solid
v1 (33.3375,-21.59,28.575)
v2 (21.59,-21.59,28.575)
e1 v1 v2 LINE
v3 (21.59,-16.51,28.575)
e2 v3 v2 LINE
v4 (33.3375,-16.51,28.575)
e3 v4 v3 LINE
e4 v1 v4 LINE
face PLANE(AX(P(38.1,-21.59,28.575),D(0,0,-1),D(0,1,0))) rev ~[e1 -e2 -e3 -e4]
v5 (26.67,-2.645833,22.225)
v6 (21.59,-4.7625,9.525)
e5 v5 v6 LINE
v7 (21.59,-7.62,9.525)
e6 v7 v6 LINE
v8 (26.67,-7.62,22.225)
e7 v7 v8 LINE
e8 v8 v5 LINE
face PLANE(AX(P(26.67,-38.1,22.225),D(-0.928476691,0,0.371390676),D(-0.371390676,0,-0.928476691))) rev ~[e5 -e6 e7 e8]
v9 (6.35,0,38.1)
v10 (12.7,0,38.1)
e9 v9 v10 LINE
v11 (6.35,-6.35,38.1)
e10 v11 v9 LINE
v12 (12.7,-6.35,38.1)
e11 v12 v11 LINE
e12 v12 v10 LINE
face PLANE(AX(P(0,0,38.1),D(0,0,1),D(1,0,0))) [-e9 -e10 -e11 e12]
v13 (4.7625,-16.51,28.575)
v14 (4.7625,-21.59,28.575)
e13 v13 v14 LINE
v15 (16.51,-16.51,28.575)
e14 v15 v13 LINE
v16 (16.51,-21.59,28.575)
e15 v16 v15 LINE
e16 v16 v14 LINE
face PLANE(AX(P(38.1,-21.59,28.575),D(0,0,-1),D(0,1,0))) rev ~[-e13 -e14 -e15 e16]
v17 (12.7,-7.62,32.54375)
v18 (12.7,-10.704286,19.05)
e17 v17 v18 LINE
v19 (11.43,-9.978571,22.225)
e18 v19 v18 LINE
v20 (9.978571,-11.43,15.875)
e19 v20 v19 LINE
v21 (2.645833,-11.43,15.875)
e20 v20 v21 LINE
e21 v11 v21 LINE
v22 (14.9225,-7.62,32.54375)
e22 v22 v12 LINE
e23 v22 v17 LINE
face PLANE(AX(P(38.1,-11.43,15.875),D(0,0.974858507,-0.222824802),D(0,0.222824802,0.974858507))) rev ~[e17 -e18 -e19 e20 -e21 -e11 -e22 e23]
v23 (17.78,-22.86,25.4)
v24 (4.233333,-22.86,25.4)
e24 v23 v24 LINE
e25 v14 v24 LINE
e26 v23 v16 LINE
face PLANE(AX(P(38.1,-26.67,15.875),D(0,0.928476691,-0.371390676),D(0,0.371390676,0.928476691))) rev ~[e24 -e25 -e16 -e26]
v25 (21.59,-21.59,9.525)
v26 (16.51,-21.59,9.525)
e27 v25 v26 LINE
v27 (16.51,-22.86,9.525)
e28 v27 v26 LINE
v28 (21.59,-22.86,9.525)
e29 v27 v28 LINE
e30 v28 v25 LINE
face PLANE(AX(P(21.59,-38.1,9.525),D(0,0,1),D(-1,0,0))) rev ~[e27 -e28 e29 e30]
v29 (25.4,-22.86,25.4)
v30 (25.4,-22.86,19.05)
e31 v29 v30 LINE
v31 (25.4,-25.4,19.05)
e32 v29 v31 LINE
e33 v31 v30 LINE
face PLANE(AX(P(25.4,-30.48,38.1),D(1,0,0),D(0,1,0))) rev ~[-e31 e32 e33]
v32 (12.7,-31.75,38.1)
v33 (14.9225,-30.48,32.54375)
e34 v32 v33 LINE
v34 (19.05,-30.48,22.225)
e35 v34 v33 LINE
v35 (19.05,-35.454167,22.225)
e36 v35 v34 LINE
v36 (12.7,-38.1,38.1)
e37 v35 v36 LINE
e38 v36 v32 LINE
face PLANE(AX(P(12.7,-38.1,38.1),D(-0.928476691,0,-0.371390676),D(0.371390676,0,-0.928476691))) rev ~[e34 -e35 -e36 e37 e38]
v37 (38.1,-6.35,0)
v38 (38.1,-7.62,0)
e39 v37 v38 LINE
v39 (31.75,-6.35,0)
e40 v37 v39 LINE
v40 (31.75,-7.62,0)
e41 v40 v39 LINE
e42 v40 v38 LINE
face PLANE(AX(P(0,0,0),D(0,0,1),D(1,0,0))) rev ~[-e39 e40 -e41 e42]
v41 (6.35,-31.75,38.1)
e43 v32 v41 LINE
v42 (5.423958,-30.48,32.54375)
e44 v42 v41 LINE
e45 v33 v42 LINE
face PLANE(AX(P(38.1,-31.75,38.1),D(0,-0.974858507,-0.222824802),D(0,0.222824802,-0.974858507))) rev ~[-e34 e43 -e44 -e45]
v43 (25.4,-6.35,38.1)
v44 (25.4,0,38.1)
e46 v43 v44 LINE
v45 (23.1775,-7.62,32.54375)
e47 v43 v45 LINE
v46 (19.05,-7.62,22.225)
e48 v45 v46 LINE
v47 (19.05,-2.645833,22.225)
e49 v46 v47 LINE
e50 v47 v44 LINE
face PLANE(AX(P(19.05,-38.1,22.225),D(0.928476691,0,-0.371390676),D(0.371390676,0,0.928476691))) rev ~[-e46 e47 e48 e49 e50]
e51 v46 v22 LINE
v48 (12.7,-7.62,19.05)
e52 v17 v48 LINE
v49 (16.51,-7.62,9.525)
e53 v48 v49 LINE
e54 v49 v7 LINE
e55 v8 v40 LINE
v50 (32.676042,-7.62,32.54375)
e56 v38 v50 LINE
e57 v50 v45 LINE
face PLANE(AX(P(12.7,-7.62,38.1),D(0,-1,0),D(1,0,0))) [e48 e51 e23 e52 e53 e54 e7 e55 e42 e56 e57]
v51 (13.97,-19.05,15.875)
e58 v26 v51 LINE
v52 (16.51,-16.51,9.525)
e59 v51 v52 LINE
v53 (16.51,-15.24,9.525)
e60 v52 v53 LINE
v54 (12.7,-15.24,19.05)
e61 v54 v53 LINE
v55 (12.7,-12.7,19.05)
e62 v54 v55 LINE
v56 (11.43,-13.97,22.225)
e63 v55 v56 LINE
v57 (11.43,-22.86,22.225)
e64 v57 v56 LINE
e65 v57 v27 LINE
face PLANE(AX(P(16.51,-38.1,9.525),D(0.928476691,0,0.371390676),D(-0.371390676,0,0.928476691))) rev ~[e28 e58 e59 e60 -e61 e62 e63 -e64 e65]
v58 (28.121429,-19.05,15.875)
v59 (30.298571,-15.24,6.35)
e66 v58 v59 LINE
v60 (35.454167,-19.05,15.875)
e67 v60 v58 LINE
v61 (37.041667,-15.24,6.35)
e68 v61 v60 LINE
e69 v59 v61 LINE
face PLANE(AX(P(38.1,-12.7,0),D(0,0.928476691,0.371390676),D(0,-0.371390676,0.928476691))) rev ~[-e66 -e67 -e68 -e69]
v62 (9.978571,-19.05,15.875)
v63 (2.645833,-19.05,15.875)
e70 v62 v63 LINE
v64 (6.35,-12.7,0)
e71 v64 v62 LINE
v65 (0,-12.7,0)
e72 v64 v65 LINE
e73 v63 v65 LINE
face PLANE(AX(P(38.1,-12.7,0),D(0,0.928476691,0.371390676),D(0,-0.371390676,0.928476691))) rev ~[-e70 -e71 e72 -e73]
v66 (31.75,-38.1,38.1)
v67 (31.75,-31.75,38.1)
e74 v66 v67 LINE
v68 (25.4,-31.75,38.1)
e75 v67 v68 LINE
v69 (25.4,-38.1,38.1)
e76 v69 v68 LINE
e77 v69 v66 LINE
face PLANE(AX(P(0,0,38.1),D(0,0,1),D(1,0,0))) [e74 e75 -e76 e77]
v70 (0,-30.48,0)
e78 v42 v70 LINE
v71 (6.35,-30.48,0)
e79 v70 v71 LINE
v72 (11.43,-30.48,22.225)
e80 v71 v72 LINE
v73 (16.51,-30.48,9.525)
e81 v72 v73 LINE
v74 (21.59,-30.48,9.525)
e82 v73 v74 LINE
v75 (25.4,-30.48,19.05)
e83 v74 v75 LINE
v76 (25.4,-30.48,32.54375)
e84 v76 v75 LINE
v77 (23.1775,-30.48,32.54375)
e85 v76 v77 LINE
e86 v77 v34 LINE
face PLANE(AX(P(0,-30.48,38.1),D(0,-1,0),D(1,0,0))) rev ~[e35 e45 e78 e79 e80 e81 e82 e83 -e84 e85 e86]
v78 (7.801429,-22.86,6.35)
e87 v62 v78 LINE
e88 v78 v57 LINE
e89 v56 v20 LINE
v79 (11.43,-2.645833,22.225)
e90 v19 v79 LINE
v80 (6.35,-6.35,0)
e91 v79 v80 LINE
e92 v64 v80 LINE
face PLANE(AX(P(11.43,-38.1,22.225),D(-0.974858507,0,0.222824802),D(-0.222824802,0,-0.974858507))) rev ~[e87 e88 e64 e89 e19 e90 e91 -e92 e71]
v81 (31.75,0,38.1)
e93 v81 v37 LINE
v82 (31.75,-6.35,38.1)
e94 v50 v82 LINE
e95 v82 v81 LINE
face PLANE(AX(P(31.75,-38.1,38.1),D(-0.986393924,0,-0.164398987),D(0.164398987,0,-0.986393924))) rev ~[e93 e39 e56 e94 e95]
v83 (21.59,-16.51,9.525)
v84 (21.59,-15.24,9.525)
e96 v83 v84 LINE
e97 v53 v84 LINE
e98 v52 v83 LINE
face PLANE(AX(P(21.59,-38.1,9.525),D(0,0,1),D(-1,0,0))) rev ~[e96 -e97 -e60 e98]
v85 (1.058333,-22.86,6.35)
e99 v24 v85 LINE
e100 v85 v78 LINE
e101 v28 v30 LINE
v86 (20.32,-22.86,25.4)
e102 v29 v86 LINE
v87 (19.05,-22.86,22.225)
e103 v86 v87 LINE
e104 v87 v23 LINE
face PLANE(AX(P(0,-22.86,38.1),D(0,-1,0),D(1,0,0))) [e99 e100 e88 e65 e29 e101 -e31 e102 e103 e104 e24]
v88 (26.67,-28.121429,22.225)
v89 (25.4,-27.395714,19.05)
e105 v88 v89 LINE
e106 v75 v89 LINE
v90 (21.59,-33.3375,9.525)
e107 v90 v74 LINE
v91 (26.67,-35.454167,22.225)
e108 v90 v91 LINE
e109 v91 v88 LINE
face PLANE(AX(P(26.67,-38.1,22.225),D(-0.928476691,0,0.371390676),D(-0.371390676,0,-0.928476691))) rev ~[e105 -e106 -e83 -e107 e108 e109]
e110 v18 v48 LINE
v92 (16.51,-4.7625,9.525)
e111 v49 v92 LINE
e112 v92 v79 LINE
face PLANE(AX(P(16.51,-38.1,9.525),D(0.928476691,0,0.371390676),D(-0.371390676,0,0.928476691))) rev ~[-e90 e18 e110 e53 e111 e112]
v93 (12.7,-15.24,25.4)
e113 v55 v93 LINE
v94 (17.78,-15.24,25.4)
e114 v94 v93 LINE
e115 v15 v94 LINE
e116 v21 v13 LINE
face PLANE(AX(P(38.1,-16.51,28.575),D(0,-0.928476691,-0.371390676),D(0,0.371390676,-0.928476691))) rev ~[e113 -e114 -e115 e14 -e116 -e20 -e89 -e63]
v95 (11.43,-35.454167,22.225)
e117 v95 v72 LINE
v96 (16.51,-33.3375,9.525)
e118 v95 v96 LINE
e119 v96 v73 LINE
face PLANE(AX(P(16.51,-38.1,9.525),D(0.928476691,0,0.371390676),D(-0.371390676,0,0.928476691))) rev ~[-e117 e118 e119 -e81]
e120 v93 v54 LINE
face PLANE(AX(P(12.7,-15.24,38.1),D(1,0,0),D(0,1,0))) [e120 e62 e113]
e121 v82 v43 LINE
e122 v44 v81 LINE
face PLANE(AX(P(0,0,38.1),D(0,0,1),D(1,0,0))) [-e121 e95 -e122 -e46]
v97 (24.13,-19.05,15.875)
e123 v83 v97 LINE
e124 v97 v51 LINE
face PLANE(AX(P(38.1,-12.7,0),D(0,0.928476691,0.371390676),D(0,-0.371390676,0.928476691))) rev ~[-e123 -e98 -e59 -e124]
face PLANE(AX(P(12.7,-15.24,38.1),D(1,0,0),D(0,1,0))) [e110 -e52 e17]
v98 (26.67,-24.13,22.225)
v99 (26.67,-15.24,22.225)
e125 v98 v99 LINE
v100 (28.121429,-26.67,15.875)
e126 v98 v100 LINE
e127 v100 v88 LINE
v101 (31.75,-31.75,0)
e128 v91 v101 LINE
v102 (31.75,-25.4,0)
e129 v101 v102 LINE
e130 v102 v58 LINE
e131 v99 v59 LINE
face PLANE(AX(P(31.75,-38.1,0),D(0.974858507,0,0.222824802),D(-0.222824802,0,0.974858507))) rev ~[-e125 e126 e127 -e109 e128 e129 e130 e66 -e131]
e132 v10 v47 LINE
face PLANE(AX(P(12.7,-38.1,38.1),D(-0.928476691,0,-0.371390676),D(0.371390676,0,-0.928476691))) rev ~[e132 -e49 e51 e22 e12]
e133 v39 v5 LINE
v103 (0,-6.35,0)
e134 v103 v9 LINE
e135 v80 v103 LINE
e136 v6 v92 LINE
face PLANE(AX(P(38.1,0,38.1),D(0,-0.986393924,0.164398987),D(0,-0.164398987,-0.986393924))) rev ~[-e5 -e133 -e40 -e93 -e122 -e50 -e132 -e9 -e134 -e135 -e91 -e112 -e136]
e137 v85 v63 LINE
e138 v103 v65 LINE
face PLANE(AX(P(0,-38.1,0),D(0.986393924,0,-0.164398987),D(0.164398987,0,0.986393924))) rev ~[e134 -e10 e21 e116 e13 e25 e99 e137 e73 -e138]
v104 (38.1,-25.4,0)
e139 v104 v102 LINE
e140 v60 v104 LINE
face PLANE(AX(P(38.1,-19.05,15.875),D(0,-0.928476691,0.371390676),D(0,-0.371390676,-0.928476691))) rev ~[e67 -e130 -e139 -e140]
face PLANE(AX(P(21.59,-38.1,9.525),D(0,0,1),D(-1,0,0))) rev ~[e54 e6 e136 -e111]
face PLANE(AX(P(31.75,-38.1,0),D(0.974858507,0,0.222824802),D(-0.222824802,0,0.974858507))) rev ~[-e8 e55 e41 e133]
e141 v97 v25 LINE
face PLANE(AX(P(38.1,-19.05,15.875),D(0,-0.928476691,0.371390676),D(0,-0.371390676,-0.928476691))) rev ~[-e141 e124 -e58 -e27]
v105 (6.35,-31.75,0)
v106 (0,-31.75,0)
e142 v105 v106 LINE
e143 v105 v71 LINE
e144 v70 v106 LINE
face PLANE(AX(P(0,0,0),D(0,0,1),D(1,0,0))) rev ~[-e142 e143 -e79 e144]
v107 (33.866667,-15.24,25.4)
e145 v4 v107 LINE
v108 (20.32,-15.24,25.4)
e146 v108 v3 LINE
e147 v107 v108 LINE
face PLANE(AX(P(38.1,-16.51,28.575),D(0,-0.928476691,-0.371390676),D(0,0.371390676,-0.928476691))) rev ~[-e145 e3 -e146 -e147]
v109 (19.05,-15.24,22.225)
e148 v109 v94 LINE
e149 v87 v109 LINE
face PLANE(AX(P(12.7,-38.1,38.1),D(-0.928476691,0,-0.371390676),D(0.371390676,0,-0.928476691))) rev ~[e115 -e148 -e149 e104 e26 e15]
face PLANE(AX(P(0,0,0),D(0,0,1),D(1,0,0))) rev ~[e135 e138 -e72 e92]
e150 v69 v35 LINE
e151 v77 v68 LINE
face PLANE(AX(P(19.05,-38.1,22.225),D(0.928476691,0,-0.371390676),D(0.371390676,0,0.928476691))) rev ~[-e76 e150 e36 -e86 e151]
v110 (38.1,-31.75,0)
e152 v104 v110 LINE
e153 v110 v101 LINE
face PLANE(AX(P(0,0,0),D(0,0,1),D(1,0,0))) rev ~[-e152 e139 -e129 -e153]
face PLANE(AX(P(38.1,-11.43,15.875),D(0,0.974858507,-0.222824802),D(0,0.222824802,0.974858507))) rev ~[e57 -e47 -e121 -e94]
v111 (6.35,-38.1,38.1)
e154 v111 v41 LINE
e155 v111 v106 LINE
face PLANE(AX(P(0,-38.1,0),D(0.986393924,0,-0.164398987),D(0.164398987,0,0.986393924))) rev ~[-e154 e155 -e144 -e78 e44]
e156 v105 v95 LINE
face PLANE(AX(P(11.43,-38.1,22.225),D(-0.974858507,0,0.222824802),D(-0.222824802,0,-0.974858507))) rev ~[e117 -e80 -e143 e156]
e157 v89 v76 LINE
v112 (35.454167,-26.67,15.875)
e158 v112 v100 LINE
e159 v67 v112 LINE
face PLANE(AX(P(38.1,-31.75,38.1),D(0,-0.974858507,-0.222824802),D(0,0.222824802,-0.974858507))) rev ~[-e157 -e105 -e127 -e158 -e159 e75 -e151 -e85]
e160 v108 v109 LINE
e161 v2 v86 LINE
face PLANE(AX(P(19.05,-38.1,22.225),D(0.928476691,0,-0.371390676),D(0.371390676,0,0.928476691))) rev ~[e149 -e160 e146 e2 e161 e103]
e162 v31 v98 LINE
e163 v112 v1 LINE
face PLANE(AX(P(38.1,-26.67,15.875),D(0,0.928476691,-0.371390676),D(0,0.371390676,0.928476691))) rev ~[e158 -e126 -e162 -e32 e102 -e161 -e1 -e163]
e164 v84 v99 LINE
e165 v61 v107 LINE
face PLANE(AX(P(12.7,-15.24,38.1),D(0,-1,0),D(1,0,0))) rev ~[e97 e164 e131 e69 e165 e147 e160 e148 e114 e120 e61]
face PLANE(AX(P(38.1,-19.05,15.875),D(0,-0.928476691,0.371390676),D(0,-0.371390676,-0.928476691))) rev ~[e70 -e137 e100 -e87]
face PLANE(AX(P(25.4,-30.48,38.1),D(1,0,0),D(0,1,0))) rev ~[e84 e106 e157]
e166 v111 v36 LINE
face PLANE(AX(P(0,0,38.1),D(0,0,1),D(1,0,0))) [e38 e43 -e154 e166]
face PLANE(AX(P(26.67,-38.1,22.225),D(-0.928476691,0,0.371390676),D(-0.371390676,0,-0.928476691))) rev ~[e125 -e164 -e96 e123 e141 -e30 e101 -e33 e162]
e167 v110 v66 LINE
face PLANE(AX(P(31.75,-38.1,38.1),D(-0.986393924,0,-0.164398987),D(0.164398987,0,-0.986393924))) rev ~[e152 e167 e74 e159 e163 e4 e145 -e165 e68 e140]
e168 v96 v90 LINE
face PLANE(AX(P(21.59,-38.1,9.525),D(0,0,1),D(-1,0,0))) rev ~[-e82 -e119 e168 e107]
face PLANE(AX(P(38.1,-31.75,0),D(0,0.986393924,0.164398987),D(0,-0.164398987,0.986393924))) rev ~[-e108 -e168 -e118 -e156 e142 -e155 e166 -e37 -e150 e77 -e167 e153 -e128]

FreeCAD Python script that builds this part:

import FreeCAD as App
import Part
import Sketcher
from FreeCAD import Vector
Q = App.Units.Quantity


def add_polygon(sketch, points):
    """Adds a closed chain of lines whose ends are joined by coincident constraints."""
    first, n = sketch.GeometryCount, len(points)
    for a, b in zip(points, points[1:] + points[:1]):
        sketch.addGeometry(Part.LineSegment(App.Vector(*a, 0), App.Vector(*b, 0)), False)
    for i in range(n):
        sketch.addConstraint(Sketcher.Constraint("Coincident", first + i, 2, first + (i + 1) % n, 1))

doc = App.newDocument("Part")
body = doc.addObject("PartDesign::Body", "Body")

sketch1 = body.newObject("Sketcher::SketchObject", "Sketch")
sketch1.AttachmentSupport = (doc.getObject("XZ_Plane"), [""])
sketch1.MapMode = "FlatFace"
add_polygon(sketch1, [(0, 38), (0, 0), (38, 0), (38, 38)])
sketch1.addConstraint([
    Sketcher.Constraint("Vertical", 0),
    Sketcher.Constraint("Horizontal", 1),
    Sketcher.Constraint("Vertical", 2),
    Sketcher.Constraint("Horizontal", 3),
    Sketcher.Constraint("Coincident", 0, 2, -1, 1),
    Sketcher.Constraint("Equal", 3, 0),
    Sketcher.Constraint("DistanceX", 1, 1, 1, 2, Q("1.5 in")),
])
pad1 = body.newObject("PartDesign::Pad", "Pad")
pad1.Profile = sketch1
pad1.Length = Q("1.5 in")

sketch2 = body.newObject("Sketcher::SketchObject", "Sketch001")
sketch2.AttachmentSupport = (doc.getObject("YZ_Plane"), [""])
sketch2.MapMode = "FlatFace"
sketch2.AttachmentOffset = App.Placement(Vector(0, 0, 1.5 * 25.4), App.Rotation())
add_polygon(sketch2, [(-6, 38), (-32, 38), (-27, 16), (-22, 29), (-17, 29), (-11, 16)])
add_polygon(sketch2, [(-32, 0), (-38, 38), (-38, 0)])
add_polygon(sketch2, [(-19, 16), (-25, 0), (-13, 0)])
add_polygon(sketch2, [(0, 0), (0, 38), (-6, 0)])
sketch2.addConstraint([
    Sketcher.Constraint("Horizontal", 0),
    Sketcher.Constraint("Horizontal", 3),
    Sketcher.Constraint("Vertical", 7),
    Sketcher.Constraint("Horizontal", 8),
    Sketcher.Constraint("Horizontal", 10),
    Sketcher.Constraint("Vertical", 12),
    Sketcher.Constraint("Horizontal", 14),
    Sketcher.Constraint("Coincident", 14, 2, -1, 1),
    Sketcher.Constraint("PointOnObject", 7, 2, -1),
    Sketcher.Constraint("PointOnObject", 9, 2, -1),
    Sketcher.Constraint("Parallel", 2, 9),
    Sketcher.Constraint("Parallel", 4, 11),
    Sketcher.Constraint("Horizontal", 1, 2, 4, 2),
    Sketcher.Constraint("Horizontal", 5, 2, 6, 2),
    Sketcher.Constraint("Horizontal", 4, 2, 11, 2),
    Sketcher.Constraint("Horizontal", 6, 2, 12, 2),
    Sketcher.Constraint("Vertical", 0, 2, 8, 2),
    Sketcher.Constraint("Vertical", 5, 2, 13, 2),
    Sketcher.Constraint("Equal", 8, 14),
    Sketcher.Constraint("Equal", 2, 4),
    Sketcher.Constraint("Equal", 1, 5),
    Sketcher.Constraint("DistanceX", 0, 2, 0, 1, Q("1 in")),
    Sketcher.Constraint("DistanceX", 3, 1, 3, 2, Q("0.2 in")),
    Sketcher.Constraint("DistanceX", 10, 1, 10, 2, Q("0.5 in")),
    Sketcher.Constraint("DistanceY", 7, 2, 7, 1, Q("1.5 in")),
    Sketcher.Constraint("DistanceX", 9, 2, -1, 1, Q("1 in")),
    Sketcher.Constraint("DistanceX", 7, 2, 10, 2, Q("1 in")),
    Sketcher.Constraint("DistanceX", 0, 2, 1, 2, Q("0.2 in")),
    Sketcher.Constraint("DistanceY", 1, 2, 2, 2, Q("0.5 in")),
])
pocket1 = body.newObject("PartDesign::Pocket", "Pocket")
pocket1.Profile = sketch2
pocket1.Length = Q("1.5 in")

sketch3 = body.newObject("Sketcher::SketchObject", "Sketch002")
sketch3.AttachmentSupport = (doc.getObject("XZ_Plane"), [""])
sketch3.MapMode = "FlatFace"
sketch3.AttachmentOffset = App.Placement(Vector(0, 0, 1.5 * 25.4), App.Rotation())
add_polygon(sketch3, [(6, 38), (0, 38), (0, 0)])
add_polygon(sketch3, [(25, 38), (13, 38), (19, 22)])
add_polygon(sketch3, [(38, 38), (32, 38), (38, 0)])
add_polygon(sketch3, [(11, 22), (6, 0), (32, 0), (27, 22), (22, 10), (17, 10)])
sketch3.addConstraint([
    Sketcher.Constraint("Horizontal", 0),
    Sketcher.Constraint("Vertical", 1),
    Sketcher.Constraint("Horizontal", 3),
    Sketcher.Constraint("Horizontal", 6),
    Sketcher.Constraint("Vertical", 8),
    Sketcher.Constraint("Horizontal", 10),
    Sketcher.Constraint("Horizontal", 13),
    Sketcher.Constraint("Coincident", 1, 2, -1, 1),
    Sketcher.Constraint("PointOnObject", 7, 2, -1),
    Sketcher.Constraint("PointOnObject", 9, 2, -1),
    Sketcher.Constraint("Parallel", 5, 12),
    Sketcher.Constraint("Parallel", 4, 14),
    Sketcher.Constraint("Horizontal", 2, 2, 3, 2),
    Sketcher.Constraint("Horizontal", 5, 2, 6, 2),
    Sketcher.Constraint("Horizontal", 4, 2, 11, 2),
    Sketcher.Constraint("Horizontal", 11, 2, 14, 2),
    Sketcher.Constraint("Vertical", 2, 2, 9, 2),
    Sketcher.Constraint("Vertical", 6, 2, 10, 2),
    Sketcher.Constraint("Equal", 0, 6),
    Sketcher.Constraint("Equal", 4, 5),
    Sketcher.Constraint("Equal", 9, 11),
    Sketcher.Constraint("DistanceX", 10, 1, 10, 2, Q("1 in")),
    Sketcher.Constraint("DistanceX", 3, 2, 3, 1, Q("0.5 in")),
    Sketcher.Constraint("DistanceX", 13, 2, 13, 1, Q("0.2 in")),
    Sketcher.Constraint("DistanceY", 1, 2, 1, 1, Q("1.5 in")),
    Sketcher.Constraint("DistanceX", -1, 1, 5, 2, Q("1 in")),
    Sketcher.Constraint("DistanceX", 3, 2, 7, 2, Q("1 in")),
    Sketcher.Constraint("DistanceX", 4, 2, 11, 2, Q("0.3 in")),
    Sketcher.Constraint("DistanceY", 12, 2, 4, 2, Q("0.5 in")),
])
pocket2 = body.newObject("PartDesign::Pocket", "Pocket001")
pocket2.Profile = sketch3
pocket2.Length = Q("1.5 in")

sketch4 = body.newObject("Sketcher::SketchObject", "Sketch003")
sketch4.AttachmentSupport = (doc.getObject("XY_Plane"), [""])
sketch4.MapMode = "FlatFace"
sketch4.AttachmentOffset = App.Placement(Vector(0, 0, 1.5 * 25.4), App.Rotation())
add_polygon(sketch4, [(13, -8), (13, -15), (38, -15), (38, -8)])
add_polygon(sketch4, [(0, -23), (0, -30), (25, -30), (25, -23)])
sketch4.addConstraint([
    Sketcher.Constraint("Vertical", 0),
    Sketcher.Constraint("Horizontal", 1),
    Sketcher.Constraint("Vertical", 2),
    Sketcher.Constraint("Horizontal", 3),
    Sketcher.Constraint("Vertical", 4),
    Sketcher.Constraint("Horizontal", 5),
    Sketcher.Constraint("Vertical", 6),
    Sketcher.Constraint("Horizontal", 7),
    Sketcher.Constraint("PointOnObject", 4, 2, -2),
    Sketcher.Constraint("Equal", 3, 5),
    Sketcher.Constraint("Equal", 2, 4),
    Sketcher.Constraint("DistanceX", 1, 1, 1, 2, Q("1 in")),
    Sketcher.Constraint("DistanceY", 0, 2, 0, 1, Q("0.3 in")),
    Sketcher.Constraint("DistanceX", -1, 1, 0, 2, Q("0.5 in")),
    Sketcher.Constraint("DistanceY", 0, 2, -1, 1, Q("0.6 in")),
    Sketcher.Constraint("DistanceY", 4, 2, -1, 1, Q("1.2 in")),
])
pocket3 = body.newObject("PartDesign::Pocket", "Pocket002")
pocket3.Profile = sketch4
pocket3.Length = Q("1.5 in")

doc.recompute()
